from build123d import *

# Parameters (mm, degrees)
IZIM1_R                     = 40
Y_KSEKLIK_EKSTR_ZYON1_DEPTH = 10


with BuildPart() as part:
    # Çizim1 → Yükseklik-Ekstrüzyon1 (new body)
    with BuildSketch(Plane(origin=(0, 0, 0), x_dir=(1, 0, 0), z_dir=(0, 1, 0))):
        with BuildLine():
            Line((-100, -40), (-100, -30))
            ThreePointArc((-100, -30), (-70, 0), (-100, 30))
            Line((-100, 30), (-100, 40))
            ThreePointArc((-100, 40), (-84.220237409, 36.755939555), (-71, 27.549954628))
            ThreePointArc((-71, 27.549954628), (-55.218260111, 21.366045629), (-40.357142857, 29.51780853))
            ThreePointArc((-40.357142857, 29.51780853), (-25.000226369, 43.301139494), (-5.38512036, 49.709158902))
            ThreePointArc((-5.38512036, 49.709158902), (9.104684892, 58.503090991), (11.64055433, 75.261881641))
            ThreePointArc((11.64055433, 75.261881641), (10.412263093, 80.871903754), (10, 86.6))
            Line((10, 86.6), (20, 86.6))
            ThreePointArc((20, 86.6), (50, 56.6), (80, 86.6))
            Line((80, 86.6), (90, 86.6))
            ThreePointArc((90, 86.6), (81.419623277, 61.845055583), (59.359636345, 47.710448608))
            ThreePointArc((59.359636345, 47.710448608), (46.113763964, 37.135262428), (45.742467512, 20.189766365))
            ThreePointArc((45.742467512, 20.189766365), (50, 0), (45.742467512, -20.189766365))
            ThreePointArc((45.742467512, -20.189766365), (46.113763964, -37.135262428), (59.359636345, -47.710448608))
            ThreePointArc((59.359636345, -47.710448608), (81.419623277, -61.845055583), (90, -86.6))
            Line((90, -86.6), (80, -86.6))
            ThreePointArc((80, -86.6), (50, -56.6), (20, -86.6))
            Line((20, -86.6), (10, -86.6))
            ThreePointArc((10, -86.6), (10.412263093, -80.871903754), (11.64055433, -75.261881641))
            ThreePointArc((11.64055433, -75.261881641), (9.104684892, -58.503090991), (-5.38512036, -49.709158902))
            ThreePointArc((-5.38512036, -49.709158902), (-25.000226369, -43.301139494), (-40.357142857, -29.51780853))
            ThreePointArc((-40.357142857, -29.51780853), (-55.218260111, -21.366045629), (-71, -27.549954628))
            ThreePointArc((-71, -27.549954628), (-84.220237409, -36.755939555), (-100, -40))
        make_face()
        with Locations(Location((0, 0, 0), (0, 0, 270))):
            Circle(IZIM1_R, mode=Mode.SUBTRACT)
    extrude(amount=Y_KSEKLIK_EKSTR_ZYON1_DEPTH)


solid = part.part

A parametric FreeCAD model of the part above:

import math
import FreeCAD as App
import Part
import Sketcher
Q = App.Units.Quantity

doc = App.newDocument("Part")
body = doc.addObject("PartDesign::Body", "Body")

sketch1 = body.newObject("Sketcher::SketchObject", "Sketch")
sketch1.AttachmentSupport = (doc.getObject("XZ_Plane"), [""])
sketch1.MapMode = "FlatFace"
sketch1.addGeometry(Part.LineSegment(App.Vector(-100, 30, 0), App.Vector(-100, 40, 0)), False)
sketch1.addGeometry(Part.ArcOfCircle(Part.Circle(App.Vector(-100, 0, 0), App.Vector(0, 0, 1), 40), math.radians(44), math.radians(90)), False)
sketch1.addGeometry(Part.ArcOfCircle(Part.Circle(App.Vector(-56, 41, 0), App.Vector(0, 0, 1), 20), math.radians(-136), math.radians(-36)), False)
sketch1.addGeometry(Part.ArcOfCircle(Part.Circle(App.Vector(0, 0, 0), App.Vector(0, 0, 1), 50), math.radians(96), math.radians(144)), False)
sketch1.addGeometry(Part.ArcOfCircle(Part.Circle(App.Vector(-8, 70, 0), App.Vector(0, 0, 1), 20), math.radians(-84), math.radians(16)), False)
sketch1.addGeometry(Part.ArcOfCircle(Part.Circle(App.Vector(50, 87, 0), App.Vector(0, 0, 1), 40), math.radians(180), math.radians(196.47)), False)
sketch1.addGeometry(Part.LineSegment(App.Vector(10, 87, 0), App.Vector(20, 87, 0)), False)
sketch1.addGeometry(Part.ArcOfCircle(Part.Circle(App.Vector(50, 87, 0), App.Vector(0, 0, 1), 30), math.radians(180), math.radians(360)), False)
sketch1.addGeometry(Part.LineSegment(App.Vector(80, 87, 0), App.Vector(90, 87, 0)), False)
sketch1.addGeometry(Part.ArcOfCircle(Part.Circle(App.Vector(50, 87, 0), App.Vector(0, 0, 1), 40), math.radians(-76), math.radians(0)), False)
sketch1.addGeometry(Part.ArcOfCircle(Part.Circle(App.Vector(64, 28, 0), App.Vector(0, 0, 1), 20), math.radians(104), math.radians(204)), False)
sketch1.addGeometry(Part.ArcOfCircle(Part.Circle(App.Vector(0, 0, 0), App.Vector(0, 0, 1), 50), math.radians(-24), math.radians(24)), False)
sketch1.addGeometry(Part.ArcOfCircle(Part.Circle(App.Vector(64, -28, 0), App.Vector(0, 0, 1), 20), math.radians(156), math.radians(256)), False)
sketch1.addGeometry(Part.ArcOfCircle(Part.Circle(App.Vector(50, -87, 0), App.Vector(0, 0, 1), 40), math.radians(0), math.radians(76)), False)
sketch1.addGeometry(Part.LineSegment(App.Vector(90, -87, 0), App.Vector(80, -87, 0)), False)
sketch1.addGeometry(Part.ArcOfCircle(Part.Circle(App.Vector(50, -87, 0), App.Vector(0, 0, 1), 30), math.radians(0), math.radians(180)), False)
sketch1.addGeometry(Part.LineSegment(App.Vector(20, -87, 0), App.Vector(10, -87, 0)), False)
sketch1.addGeometry(Part.ArcOfCircle(Part.Circle(App.Vector(50, -87, 0), App.Vector(0, 0, 1), 40), math.radians(163.53), math.radians(180)), False)
sketch1.addGeometry(Part.ArcOfCircle(Part.Circle(App.Vector(-8, -70, 0), App.Vector(0, 0, 1), 20), math.radians(-16), math.radians(84)), False)
sketch1.addGeometry(Part.ArcOfCircle(Part.Circle(App.Vector(0, 0, 0), App.Vector(0, 0, 1), 50), math.radians(-144), math.radians(-96)), False)
sketch1.addGeometry(Part.ArcOfCircle(Part.Circle(App.Vector(-56, -41, 0), App.Vector(0, 0, 1), 20), math.radians(36), math.radians(136)), False)
sketch1.addGeometry(Part.ArcOfCircle(Part.Circle(App.Vector(-100, 0, 0), App.Vector(0, 0, 1), 40), math.radians(-90), math.radians(-44)), False)
sketch1.addGeometry(Part.LineSegment(App.Vector(-100, -40, 0), App.Vector(-100, -30, 0)), False)
sketch1.addGeometry(Part.ArcOfCircle(Part.Circle(App.Vector(-100, 0, 0), App.Vector(0, 0, 1), 30), math.radians(-90), math.radians(90)), False)
sketch1.addGeometry(Part.Circle(App.Vector(0, 0, 0), App.Vector(0, 0, 1), 40), False)
sketch1.addConstraint(Sketcher.Constraint("Coincident", 0, 2, 1, 2))
sketch1.addConstraint(Sketcher.Constraint("Tangent", 1, 1, 2, 1))
sketch1.addConstraint(Sketcher.Constraint("Tangent", 2, 2, 3, 2))
sketch1.addConstraint(Sketcher.Constraint("Tangent", 3, 1, 4, 1))
sketch1.addConstraint(Sketcher.Constraint("Tangent", 4, 2, 5, 2))
sketch1.addConstraint(Sketcher.Constraint("Coincident", 5, 1, 6, 1))
sketch1.addConstraint(Sketcher.Constraint("Coincident", 6, 2, 7, 1))
sketch1.addConstraint(Sketcher.Constraint("Coincident", 7, 2, 8, 1))
sketch1.addConstraint(Sketcher.Constraint("Coincident", 8, 2, 9, 2))
sketch1.addConstraint(Sketcher.Constraint("Tangent", 9, 1, 10, 1))
sketch1.addConstraint(Sketcher.Constraint("Tangent", 10, 2, 11, 2))
sketch1.addConstraint(Sketcher.Constraint("Tangent", 11, 1, 12, 1))
sketch1.addConstraint(Sketcher.Constraint("Tangent", 12, 2, 13, 2))
sketch1.addConstraint(Sketcher.Constraint("Coincident", 13, 1, 14, 1))
sketch1.addConstraint(Sketcher.Constraint("Coincident", 14, 2, 15, 1))
sketch1.addConstraint(Sketcher.Constraint("Coincident", 15, 2, 16, 1))
sketch1.addConstraint(Sketcher.Constraint("Coincident", 16, 2, 17, 2))
sketch1.addConstraint(Sketcher.Constraint("Tangent", 17, 1, 18, 1))
sketch1.addConstraint(Sketcher.Constraint("Tangent", 18, 2, 19, 2))
sketch1.addConstraint(Sketcher.Constraint("Tangent", 19, 1, 20, 1))
sketch1.addConstraint(Sketcher.Constraint("Tangent", 20, 2, 21, 2))
sketch1.addConstraint(Sketcher.Constraint("Coincident", 21, 1, 22, 1))
sketch1.addConstraint(Sketcher.Constraint("Coincident", 22, 2, 23, 1))
sketch1.addConstraint(Sketcher.Constraint("Coincident", 23, 2, 0, 1))
sketch1.addConstraint(Sketcher.Constraint("Vertical", 0))
sketch1.addConstraint(Sketcher.Constraint("Horizontal", 6))
sketch1.addConstraint(Sketcher.Constraint("Horizontal", 8))
sketch1.addConstraint(Sketcher.Constraint("Horizontal", 14))
sketch1.addConstraint(Sketcher.Constraint("Horizontal", 16))
sketch1.addConstraint(Sketcher.Constraint("Vertical", 22))
sketch1.addConstraint(Sketcher.Constraint("Coincident", 3, 3, -1, 1))
sketch1.addConstraint(Sketcher.Constraint("Coincident", 11, 3, -1, 1))
sketch1.addConstraint(Sketcher.Constraint("Coincident", 19, 3, -1, 1))
sketch1.addConstraint(Sketcher.Constraint("Coincident", 24, 3, -1, 1))
sketch1.addConstraint(Sketcher.Constraint("Coincident", 7, 3, 5, 3))
sketch1.addConstraint(Sketcher.Constraint("Coincident", 9, 3, 5, 3))
sketch1.addConstraint(Sketcher.Constraint("Coincident", 15, 3, 13, 3))
sketch1.addConstraint(Sketcher.Constraint("Coincident", 17, 3, 13, 3))
sketch1.addConstraint(Sketcher.Constraint("Coincident", 21, 3, 1, 3))
sketch1.addConstraint(Sketcher.Constraint("Coincident", 23, 3, 1, 3))
sketch1.addConstraint(Sketcher.Constraint("Equal", 2, 4))
sketch1.addConstraint(Sketcher.Constraint("Equal", 1, 5))
sketch1.addConstraint(Sketcher.Constraint("Equal", 5, 9))
sketch1.addConstraint(Sketcher.Constraint("Equal", 4, 10))
sketch1.addConstraint(Sketcher.Constraint("Equal", 3, 11))
sketch1.addConstraint(Sketcher.Constraint("Equal", 10, 12))
sketch1.addConstraint(Sketcher.Constraint("Equal", 9, 13))
sketch1.addConstraint(Sketcher.Constraint("Equal", 7, 15))
sketch1.addConstraint(Sketcher.Constraint("Equal", 13, 17))
sketch1.addConstraint(Sketcher.Constraint("Equal", 12, 18))
sketch1.addConstraint(Sketcher.Constraint("Equal", 11, 19))
sketch1.addConstraint(Sketcher.Constraint("Equal", 18, 20))
sketch1.addConstraint(Sketcher.Constraint("Equal", 17, 21))
sketch1.addConstraint(Sketcher.Constraint("Equal", 15, 23))
sketch1.addConstraint(Sketcher.Constraint("Equal", 21, 24))
sketch1.addConstraint(Sketcher.Constraint("Symmetric", 5, 3, 13, 3, -1))
sketch1.addConstraint(Sketcher.Constraint("Symmetric", 0, 2, 21, 1, -1))
sketch1.addConstraint(Sketcher.Constraint("Horizontal", 9, 3, 5, 1))
sketch1.addConstraint(Sketcher.Constraint("Horizontal", 6, 2, 7, 2))
sketch1.addConstraint(Sketcher.Constraint("Horizontal", 17, 3, 13, 1))
sketch1.addConstraint(Sketcher.Constraint("Horizontal", 14, 2, 15, 2))
sketch1.addConstraint(Sketcher.Constraint("Vertical", 23, 3, 0, 2))
sketch1.addConstraint(Sketcher.Constraint("Diameter", 24, Q("80 mm")))
sketch1.addConstraint(Sketcher.Constraint("Radius", 2, Q("20 mm")))
sketch1.addConstraint(Sketcher.Constraint("Radius", 3, Q("50 mm")))
sketch1.addConstraint(Sketcher.Constraint("Radius", 7, Q("30 mm")))
sketch1.addConstraint(Sketcher.Constraint("DistanceX", 1, 3, -1, 1, Q("100 mm")))
sketch1.addConstraint(Sketcher.Constraint("DistanceX", -1, 1, 5, 3, Q("50 mm")))
sketch1.addConstraint(Sketcher.Constraint("DistanceY", -1, 1, 5, 3, Q("86.6 mm")))
pad1 = body.newObject("PartDesign::Pad", "Pad")
pad1.Profile = sketch1
pad1.Length = 10
pad1.Reversed = True

doc.recompute()
